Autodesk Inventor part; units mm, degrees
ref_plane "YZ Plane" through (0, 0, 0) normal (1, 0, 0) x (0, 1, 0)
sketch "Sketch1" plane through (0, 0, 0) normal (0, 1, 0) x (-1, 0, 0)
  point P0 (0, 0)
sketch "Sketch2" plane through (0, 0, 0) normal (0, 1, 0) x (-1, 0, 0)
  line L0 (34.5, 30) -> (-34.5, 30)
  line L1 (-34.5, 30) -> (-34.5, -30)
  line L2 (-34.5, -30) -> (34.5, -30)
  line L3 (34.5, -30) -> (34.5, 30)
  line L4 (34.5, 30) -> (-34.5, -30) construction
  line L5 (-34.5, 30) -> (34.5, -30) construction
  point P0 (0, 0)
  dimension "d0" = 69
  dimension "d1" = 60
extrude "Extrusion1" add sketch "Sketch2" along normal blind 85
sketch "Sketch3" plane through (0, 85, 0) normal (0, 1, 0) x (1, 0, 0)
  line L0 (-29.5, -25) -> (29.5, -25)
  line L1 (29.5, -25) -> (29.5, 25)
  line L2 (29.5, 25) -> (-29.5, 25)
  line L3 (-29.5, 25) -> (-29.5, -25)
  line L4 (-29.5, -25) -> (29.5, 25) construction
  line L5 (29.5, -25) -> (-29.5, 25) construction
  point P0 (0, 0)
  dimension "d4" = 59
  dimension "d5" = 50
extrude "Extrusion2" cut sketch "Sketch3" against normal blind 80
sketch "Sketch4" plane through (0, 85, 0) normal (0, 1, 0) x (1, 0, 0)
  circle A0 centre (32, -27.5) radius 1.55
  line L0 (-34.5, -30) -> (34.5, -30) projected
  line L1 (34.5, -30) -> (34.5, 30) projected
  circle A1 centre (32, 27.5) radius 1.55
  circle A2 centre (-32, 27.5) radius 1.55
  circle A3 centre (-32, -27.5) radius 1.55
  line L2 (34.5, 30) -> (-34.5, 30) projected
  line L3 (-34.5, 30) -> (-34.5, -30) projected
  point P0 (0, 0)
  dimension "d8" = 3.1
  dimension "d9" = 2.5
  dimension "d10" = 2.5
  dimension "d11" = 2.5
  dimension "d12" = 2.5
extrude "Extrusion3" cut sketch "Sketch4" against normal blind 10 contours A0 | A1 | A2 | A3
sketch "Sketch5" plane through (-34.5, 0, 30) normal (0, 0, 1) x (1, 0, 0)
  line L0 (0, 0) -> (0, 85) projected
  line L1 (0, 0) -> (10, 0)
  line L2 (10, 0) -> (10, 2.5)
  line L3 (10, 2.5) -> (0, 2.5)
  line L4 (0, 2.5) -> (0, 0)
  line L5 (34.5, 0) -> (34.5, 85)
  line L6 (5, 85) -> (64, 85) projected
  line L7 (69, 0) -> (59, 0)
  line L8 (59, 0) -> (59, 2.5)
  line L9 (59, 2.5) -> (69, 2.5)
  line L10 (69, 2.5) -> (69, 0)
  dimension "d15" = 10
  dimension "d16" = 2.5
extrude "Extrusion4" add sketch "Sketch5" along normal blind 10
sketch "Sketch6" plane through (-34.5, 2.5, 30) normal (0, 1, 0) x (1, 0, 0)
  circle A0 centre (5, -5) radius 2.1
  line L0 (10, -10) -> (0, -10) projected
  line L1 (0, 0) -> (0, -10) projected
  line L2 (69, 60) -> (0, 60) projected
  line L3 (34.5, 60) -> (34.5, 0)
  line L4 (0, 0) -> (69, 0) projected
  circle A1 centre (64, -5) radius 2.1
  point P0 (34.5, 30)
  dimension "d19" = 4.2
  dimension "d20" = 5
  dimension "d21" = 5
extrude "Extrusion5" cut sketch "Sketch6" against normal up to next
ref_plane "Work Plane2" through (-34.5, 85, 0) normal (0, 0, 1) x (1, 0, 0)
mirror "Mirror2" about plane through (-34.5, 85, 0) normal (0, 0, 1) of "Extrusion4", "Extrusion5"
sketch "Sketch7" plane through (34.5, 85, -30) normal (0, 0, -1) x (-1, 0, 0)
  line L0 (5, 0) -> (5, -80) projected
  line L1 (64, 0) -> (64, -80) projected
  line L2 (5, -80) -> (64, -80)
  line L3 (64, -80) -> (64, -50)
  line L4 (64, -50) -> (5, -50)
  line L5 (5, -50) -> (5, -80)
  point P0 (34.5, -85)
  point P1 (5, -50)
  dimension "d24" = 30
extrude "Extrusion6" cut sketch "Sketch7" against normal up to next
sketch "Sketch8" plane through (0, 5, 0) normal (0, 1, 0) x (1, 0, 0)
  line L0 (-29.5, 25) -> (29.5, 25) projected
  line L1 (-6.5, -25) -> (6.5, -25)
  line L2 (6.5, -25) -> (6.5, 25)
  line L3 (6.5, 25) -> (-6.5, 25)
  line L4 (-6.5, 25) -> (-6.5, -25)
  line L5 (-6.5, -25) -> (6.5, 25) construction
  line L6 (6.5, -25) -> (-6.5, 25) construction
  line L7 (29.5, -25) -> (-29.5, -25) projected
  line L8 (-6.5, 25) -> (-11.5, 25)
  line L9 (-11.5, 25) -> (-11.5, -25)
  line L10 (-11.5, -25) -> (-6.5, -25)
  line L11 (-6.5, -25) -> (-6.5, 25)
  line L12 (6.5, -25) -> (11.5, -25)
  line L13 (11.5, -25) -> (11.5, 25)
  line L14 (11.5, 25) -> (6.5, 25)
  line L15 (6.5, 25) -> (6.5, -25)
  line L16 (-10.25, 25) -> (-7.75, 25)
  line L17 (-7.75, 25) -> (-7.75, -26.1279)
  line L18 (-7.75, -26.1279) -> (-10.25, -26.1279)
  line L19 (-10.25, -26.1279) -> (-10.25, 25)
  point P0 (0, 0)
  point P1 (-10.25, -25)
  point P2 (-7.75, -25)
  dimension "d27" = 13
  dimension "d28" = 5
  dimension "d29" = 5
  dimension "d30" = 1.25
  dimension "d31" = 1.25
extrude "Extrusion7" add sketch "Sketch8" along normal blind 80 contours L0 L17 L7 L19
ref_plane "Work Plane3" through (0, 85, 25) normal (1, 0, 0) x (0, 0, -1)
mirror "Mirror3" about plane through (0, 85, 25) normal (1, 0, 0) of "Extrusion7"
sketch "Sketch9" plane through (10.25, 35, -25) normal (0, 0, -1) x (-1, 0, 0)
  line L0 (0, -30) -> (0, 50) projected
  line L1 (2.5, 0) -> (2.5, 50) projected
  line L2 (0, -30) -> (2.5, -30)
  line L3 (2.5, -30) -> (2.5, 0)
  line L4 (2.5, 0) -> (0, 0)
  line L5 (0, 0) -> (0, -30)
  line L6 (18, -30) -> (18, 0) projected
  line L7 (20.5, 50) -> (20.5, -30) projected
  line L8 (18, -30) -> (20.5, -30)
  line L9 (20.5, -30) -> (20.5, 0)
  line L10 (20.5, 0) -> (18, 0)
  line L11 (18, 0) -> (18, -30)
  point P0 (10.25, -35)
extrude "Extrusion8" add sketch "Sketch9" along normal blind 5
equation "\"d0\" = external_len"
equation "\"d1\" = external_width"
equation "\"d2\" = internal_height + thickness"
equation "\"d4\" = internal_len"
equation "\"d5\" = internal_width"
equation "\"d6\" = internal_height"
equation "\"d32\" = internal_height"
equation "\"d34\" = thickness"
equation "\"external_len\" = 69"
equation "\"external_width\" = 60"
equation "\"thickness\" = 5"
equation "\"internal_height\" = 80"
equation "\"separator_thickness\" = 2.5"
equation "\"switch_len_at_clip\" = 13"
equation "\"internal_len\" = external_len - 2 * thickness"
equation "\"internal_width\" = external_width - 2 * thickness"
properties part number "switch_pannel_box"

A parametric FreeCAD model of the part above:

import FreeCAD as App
import Part
import Sketcher
from FreeCAD import Vector
Q = App.Units.Quantity


def add_polygon(sketch, points):
    """Adds a closed chain of lines whose ends are joined by coincident constraints."""
    first, n = sketch.GeometryCount, len(points)
    for a, b in zip(points, points[1:] + points[:1]):
        sketch.addGeometry(Part.LineSegment(App.Vector(*a, 0), App.Vector(*b, 0)), False)
    for i in range(n):
        sketch.addConstraint(Sketcher.Constraint("Coincident", first + i, 2, first + (i + 1) % n, 1))

doc = App.newDocument("Part")
body = doc.addObject("PartDesign::Body", "Body")

sketch1 = body.newObject("Sketcher::SketchObject", "Sketch")
sketch1.AttachmentSupport = (doc.getObject("XZ_Plane"), [""])
sketch1.MapMode = "FlatFace"
add_polygon(sketch1, [(-34, -30), (-34, 30), (34, 30), (34, -30)])
sketch1.addConstraint(Sketcher.Constraint("Vertical", 0))
sketch1.addConstraint(Sketcher.Constraint("Horizontal", 1))
sketch1.addConstraint(Sketcher.Constraint("Vertical", 2))
sketch1.addConstraint(Sketcher.Constraint("Horizontal", 3))
sketch1.addConstraint(Sketcher.Constraint("Symmetric", 0, 2, 2, 2, -1, 1))
sketch1.addConstraint(Sketcher.Constraint("DistanceX", 1, 1, 1, 2, Q("69 mm")))
sketch1.addConstraint(Sketcher.Constraint("DistanceY", 0, 1, 0, 2, Q("60 mm")))
pad1 = body.newObject("PartDesign::Pad", "Pad")
pad1.Profile = sketch1
pad1.Length = 85
pad1.Reversed = True

sketch2 = body.newObject("Sketcher::SketchObject", "Sketch001")
sketch2.AttachmentSupport = (doc.getObject("XZ_Plane"), [""])
sketch2.MapMode = "FlatFace"
sketch2.AttachmentOffset = App.Placement(Vector(0, 0, -85), App.Rotation())
add_polygon(sketch2, [(-30, -25), (-30, 25), (30, 25), (30, -25)])
sketch2.addConstraint(Sketcher.Constraint("Vertical", 0))
sketch2.addConstraint(Sketcher.Constraint("Horizontal", 1))
sketch2.addConstraint(Sketcher.Constraint("Vertical", 2))
sketch2.addConstraint(Sketcher.Constraint("Horizontal", 3))
sketch2.addConstraint(Sketcher.Constraint("Symmetric", 0, 2, 2, 2, -1, 1))
sketch2.addConstraint(Sketcher.Constraint("DistanceX", 1, 1, 1, 2, Q("59 mm")))
sketch2.addConstraint(Sketcher.Constraint("DistanceY", 0, 1, 0, 2, Q("50 mm")))
pocket1 = body.newObject("PartDesign::Pocket", "Pocket")
pocket1.Profile = sketch2
pocket1.Length = 80
pocket1.Reversed = True

sketch3 = body.newObject("Sketcher::SketchObject", "Sketch002")
sketch3.AttachmentSupport = (doc.getObject("XZ_Plane"), [""])
sketch3.MapMode = "FlatFace"
sketch3.AttachmentOffset = App.Placement(Vector(0, 0, -85), App.Rotation())
sketch3.addGeometry(Part.Circle(Vector(32, 27.5, 0), Vector(0, 0, 1), 1.6), False)
sketch3.addGeometry(Part.Circle(Vector(32, -27.5, 0), Vector(0, 0, 1), 1.6), False)
sketch3.addGeometry(Part.Circle(Vector(-32, -27.5, 0), Vector(0, 0, 1), 1.6), False)
sketch3.addGeometry(Part.Circle(Vector(-32, 27.5, 0), Vector(0, 0, 1), 1.6), False)
sketch3.addConstraint(Sketcher.Constraint("Equal", 0, 1))
sketch3.addConstraint(Sketcher.Constraint("Equal", 1, 2))
sketch3.addConstraint(Sketcher.Constraint("Equal", 2, 3))
sketch3.addConstraint(Sketcher.Constraint("Symmetric", 0, 3, 2, 3, -1, 1))
sketch3.addConstraint(Sketcher.Constraint("Symmetric", 1, 3, 3, 3, -1, 1))
sketch3.addConstraint(Sketcher.Constraint("Symmetric", 1, 3, 2, 3, -2))
sketch3.addConstraint(Sketcher.Constraint("Diameter", 0, Q("3.1 mm")))
sketch3.addConstraint(Sketcher.Constraint("DistanceX", -1, 1, 0, 3, Q("32 mm")))
sketch3.addConstraint(Sketcher.Constraint("DistanceY", 1, 3, 0, 3, Q("55 mm")))
pocket2 = body.newObject("PartDesign::Pocket", "Pocket001")
pocket2.Profile = sketch3
pocket2.Length = 10
pocket2.Reversed = True

sketch4 = body.newObject("Sketcher::SketchObject", "Sketch003")
sketch4.AttachmentSupport = (doc.getObject("XY_Plane"), [""])
sketch4.MapMode = "FlatFace"
sketch4.AttachmentOffset = App.Placement(Vector(0, 0, 30), App.Rotation())
add_polygon(sketch4, [(-34.5, 2.5), (-34.5, 0), (-24.5, 0), (-24.5, 2.5)])
add_polygon(sketch4, [(24.5, 0), (34.5, 0), (34.5, 2.5), (24.5, 2.5)])
sketch4.addConstraint(Sketcher.Constraint("Vertical", 0))
sketch4.addConstraint(Sketcher.Constraint("Horizontal", 1))
sketch4.addConstraint(Sketcher.Constraint("Vertical", 2))
sketch4.addConstraint(Sketcher.Constraint("Horizontal", 3))
sketch4.addConstraint(Sketcher.Constraint("Horizontal", 4))
sketch4.addConstraint(Sketcher.Constraint("Vertical", 5))
sketch4.addConstraint(Sketcher.Constraint("Horizontal", 6))
sketch4.addConstraint(Sketcher.Constraint("Vertical", 7))
sketch4.addConstraint(Sketcher.Constraint("Symmetric", 0, 2, 4, 2, -1, 1))
sketch4.addConstraint(Sketcher.Constraint("Symmetric", 2, 2, 6, 2, -2))
sketch4.addConstraint(Sketcher.Constraint("PointOnObject", 0, 2, -1))
sketch4.addConstraint(Sketcher.Constraint("DistanceX", 1, 1, 1, 2, Q("10 mm")))
sketch4.addConstraint(Sketcher.Constraint("DistanceY", 0, 2, 0, 1, Q("2.5 mm")))
sketch4.addConstraint(Sketcher.Constraint("DistanceX", 1, 2, 4, 2, Q("59 mm")))
pad2 = body.newObject("PartDesign::Pad", "Pad001")
pad2.Profile = sketch4
pad2.Length = 10

sketch5 = body.newObject("Sketcher::SketchObject", "Sketch004")
sketch5.AttachmentSupport = (doc.getObject("XZ_Plane"), [""])
sketch5.MapMode = "FlatFace"
sketch5.AttachmentOffset = App.Placement(Vector(0, 0, -2.5), App.Rotation())
sketch5.addGeometry(Part.Circle(Vector(-29.5, 35, 0), Vector(0, 0, 1), 2.1), False)
sketch5.addGeometry(Part.Circle(Vector(29.5, 35, 0), Vector(0, 0, 1), 2.1), False)
sketch5.addConstraint(Sketcher.Constraint("Equal", 0, 1))
sketch5.addConstraint(Sketcher.Constraint("Symmetric", 0, 3, 1, 3, -2))
sketch5.addConstraint(Sketcher.Constraint("Diameter", 0, Q("4.2 mm")))
sketch5.addConstraint(Sketcher.Constraint("DistanceY", -1, 1, 0, 3, Q("35 mm")))
sketch5.addConstraint(Sketcher.Constraint("DistanceX", 0, 3, 1, 3, Q("59 mm")))
pocket3 = body.newObject("PartDesign::Pocket", "Pocket002")
pocket3.Profile = sketch5
pocket3.Length = 2.5
pocket3.Reversed = True
doc.recompute()

mirrored = body.newObject("PartDesign::Mirrored", "Mirrored")
mirrored.Originals = [pad2, pocket3]
mirrored.MirrorPlane = (doc.getObject("XY_Plane"), [""])
body.Tip = mirrored

sketch6 = body.newObject("Sketcher::SketchObject", "Sketch005")
sketch6.AttachmentSupport = (doc.getObject("XY_Plane"), [""])
sketch6.MapMode = "FlatFace"
sketch6.AttachmentOffset = App.Placement(Vector(0, 0, -30), App.Rotation())
add_polygon(sketch6, [(-30, 35), (30, 35), (30, 5), (-30, 5)])
sketch6.addConstraint(Sketcher.Constraint("Horizontal", 0))
sketch6.addConstraint(Sketcher.Constraint("Vertical", 1))
sketch6.addConstraint(Sketcher.Constraint("Horizontal", 2))
sketch6.addConstraint(Sketcher.Constraint("Vertical", 3))
sketch6.addConstraint(Sketcher.Constraint("DistanceY", 1, 2, 1, 1, Q("30 mm")))
sketch6.addConstraint(Sketcher.Constraint("DistanceX", 0, 1, 0, 2, Q("59 mm")))
sketch6.addConstraint(Sketcher.Constraint("DistanceY", -1, 1, 0, 2, Q("35 mm")))
sketch6.addConstraint(Sketcher.Constraint("DistanceX", -1, 1, 0, 2, Q("29.5 mm")))
pocket4 = body.newObject("PartDesign::Pocket", "Pocket003")
pocket4.Profile = sketch6
pocket4.Type = "UpToFirst"
pocket4.Reversed = True

sketch7 = body.newObject("Sketcher::SketchObject", "Sketch006")
sketch7.AttachmentSupport = (doc.getObject("XZ_Plane"), [""])
sketch7.MapMode = "FlatFace"
sketch7.AttachmentOffset = App.Placement(Vector(0, 0, -5), App.Rotation())
add_polygon(sketch7, [(-7.8, -25), (-10.2, -25), (-10.2, 25), (-7.8, 25)])
sketch7.addConstraint(Sketcher.Constraint("Horizontal", 0))
sketch7.addConstraint(Sketcher.Constraint("Vertical", 1))
sketch7.addConstraint(Sketcher.Constraint("Horizontal", 2))
sketch7.addConstraint(Sketcher.Constraint("Vertical", 3))
sketch7.addConstraint(Sketcher.Constraint("DistanceY", 1, 1, 1, 2, Q("50 mm")))
sketch7.addConstraint(Sketcher.Constraint("DistanceX", 0, 2, 0, 1, Q("2.5 mm")))
sketch7.addConstraint(Sketcher.Constraint("DistanceY", 0, 2, -1, 1, Q("25 mm")))
sketch7.addConstraint(Sketcher.Constraint("DistanceX", 0, 2, -1, 1, Q("10.25 mm")))
pad3 = body.newObject("PartDesign::Pad", "Pad002")
pad3.Profile = sketch7
pad3.Length = 80
pad3.Reversed = True
doc.recompute()

mirrored2 = body.newObject("PartDesign::Mirrored", "Mirrored001")
mirrored2.Originals = [pad3]
mirrored2.MirrorPlane = (doc.getObject("YZ_Plane"), [""])
body.Tip = mirrored2

sketch8 = body.newObject("Sketcher::SketchObject", "Sketch007")
sketch8.AttachmentSupport = (doc.getObject("XY_Plane"), [""])
sketch8.MapMode = "FlatFace"
sketch8.AttachmentOffset = App.Placement(Vector(0, 0, -25), App.Rotation())
add_polygon(sketch8, [(10.2, 35), (10.2, 5), (7.8, 5), (7.8, 35)])
add_polygon(sketch8, [(-7.8, 35), (-7.8, 5), (-10.2, 5), (-10.2, 35)])
sketch8.addConstraint(Sketcher.Constraint("Vertical", 0))
sketch8.addConstraint(Sketcher.Constraint("Horizontal", 1))
sketch8.addConstraint(Sketcher.Constraint("Vertical", 2))
sketch8.addConstraint(Sketcher.Constraint("Horizontal", 3))
sketch8.addConstraint(Sketcher.Constraint("Vertical", 4))
sketch8.addConstraint(Sketcher.Constraint("Horizontal", 5))
sketch8.addConstraint(Sketcher.Constraint("Vertical", 6))
sketch8.addConstraint(Sketcher.Constraint("Horizontal", 7))
sketch8.addConstraint(Sketcher.Constraint("Symmetric", 1, 2, 4, 2, -2))
sketch8.addConstraint(Sketcher.Constraint("Symmetric", 3, 2, 6, 2, -2))
sketch8.addConstraint(Sketcher.Constraint("DistanceY", 0, 2, 0, 1, Q("30 mm")))
sketch8.addConstraint(Sketcher.Constraint("DistanceX", 1, 2, 1, 1, Q("2.5 mm")))
sketch8.addConstraint(Sketcher.Constraint("DistanceY", -1, 1, 0, 2, Q("5 mm")))
sketch8.addConstraint(Sketcher.Constraint("DistanceX", 4, 2, 0, 2, Q("18 mm")))
pad4 = body.newObject("PartDesign::Pad", "Pad003")
pad4.Profile = sketch8
pad4.Length = 5
pad4.Reversed = True

doc.recompute()
